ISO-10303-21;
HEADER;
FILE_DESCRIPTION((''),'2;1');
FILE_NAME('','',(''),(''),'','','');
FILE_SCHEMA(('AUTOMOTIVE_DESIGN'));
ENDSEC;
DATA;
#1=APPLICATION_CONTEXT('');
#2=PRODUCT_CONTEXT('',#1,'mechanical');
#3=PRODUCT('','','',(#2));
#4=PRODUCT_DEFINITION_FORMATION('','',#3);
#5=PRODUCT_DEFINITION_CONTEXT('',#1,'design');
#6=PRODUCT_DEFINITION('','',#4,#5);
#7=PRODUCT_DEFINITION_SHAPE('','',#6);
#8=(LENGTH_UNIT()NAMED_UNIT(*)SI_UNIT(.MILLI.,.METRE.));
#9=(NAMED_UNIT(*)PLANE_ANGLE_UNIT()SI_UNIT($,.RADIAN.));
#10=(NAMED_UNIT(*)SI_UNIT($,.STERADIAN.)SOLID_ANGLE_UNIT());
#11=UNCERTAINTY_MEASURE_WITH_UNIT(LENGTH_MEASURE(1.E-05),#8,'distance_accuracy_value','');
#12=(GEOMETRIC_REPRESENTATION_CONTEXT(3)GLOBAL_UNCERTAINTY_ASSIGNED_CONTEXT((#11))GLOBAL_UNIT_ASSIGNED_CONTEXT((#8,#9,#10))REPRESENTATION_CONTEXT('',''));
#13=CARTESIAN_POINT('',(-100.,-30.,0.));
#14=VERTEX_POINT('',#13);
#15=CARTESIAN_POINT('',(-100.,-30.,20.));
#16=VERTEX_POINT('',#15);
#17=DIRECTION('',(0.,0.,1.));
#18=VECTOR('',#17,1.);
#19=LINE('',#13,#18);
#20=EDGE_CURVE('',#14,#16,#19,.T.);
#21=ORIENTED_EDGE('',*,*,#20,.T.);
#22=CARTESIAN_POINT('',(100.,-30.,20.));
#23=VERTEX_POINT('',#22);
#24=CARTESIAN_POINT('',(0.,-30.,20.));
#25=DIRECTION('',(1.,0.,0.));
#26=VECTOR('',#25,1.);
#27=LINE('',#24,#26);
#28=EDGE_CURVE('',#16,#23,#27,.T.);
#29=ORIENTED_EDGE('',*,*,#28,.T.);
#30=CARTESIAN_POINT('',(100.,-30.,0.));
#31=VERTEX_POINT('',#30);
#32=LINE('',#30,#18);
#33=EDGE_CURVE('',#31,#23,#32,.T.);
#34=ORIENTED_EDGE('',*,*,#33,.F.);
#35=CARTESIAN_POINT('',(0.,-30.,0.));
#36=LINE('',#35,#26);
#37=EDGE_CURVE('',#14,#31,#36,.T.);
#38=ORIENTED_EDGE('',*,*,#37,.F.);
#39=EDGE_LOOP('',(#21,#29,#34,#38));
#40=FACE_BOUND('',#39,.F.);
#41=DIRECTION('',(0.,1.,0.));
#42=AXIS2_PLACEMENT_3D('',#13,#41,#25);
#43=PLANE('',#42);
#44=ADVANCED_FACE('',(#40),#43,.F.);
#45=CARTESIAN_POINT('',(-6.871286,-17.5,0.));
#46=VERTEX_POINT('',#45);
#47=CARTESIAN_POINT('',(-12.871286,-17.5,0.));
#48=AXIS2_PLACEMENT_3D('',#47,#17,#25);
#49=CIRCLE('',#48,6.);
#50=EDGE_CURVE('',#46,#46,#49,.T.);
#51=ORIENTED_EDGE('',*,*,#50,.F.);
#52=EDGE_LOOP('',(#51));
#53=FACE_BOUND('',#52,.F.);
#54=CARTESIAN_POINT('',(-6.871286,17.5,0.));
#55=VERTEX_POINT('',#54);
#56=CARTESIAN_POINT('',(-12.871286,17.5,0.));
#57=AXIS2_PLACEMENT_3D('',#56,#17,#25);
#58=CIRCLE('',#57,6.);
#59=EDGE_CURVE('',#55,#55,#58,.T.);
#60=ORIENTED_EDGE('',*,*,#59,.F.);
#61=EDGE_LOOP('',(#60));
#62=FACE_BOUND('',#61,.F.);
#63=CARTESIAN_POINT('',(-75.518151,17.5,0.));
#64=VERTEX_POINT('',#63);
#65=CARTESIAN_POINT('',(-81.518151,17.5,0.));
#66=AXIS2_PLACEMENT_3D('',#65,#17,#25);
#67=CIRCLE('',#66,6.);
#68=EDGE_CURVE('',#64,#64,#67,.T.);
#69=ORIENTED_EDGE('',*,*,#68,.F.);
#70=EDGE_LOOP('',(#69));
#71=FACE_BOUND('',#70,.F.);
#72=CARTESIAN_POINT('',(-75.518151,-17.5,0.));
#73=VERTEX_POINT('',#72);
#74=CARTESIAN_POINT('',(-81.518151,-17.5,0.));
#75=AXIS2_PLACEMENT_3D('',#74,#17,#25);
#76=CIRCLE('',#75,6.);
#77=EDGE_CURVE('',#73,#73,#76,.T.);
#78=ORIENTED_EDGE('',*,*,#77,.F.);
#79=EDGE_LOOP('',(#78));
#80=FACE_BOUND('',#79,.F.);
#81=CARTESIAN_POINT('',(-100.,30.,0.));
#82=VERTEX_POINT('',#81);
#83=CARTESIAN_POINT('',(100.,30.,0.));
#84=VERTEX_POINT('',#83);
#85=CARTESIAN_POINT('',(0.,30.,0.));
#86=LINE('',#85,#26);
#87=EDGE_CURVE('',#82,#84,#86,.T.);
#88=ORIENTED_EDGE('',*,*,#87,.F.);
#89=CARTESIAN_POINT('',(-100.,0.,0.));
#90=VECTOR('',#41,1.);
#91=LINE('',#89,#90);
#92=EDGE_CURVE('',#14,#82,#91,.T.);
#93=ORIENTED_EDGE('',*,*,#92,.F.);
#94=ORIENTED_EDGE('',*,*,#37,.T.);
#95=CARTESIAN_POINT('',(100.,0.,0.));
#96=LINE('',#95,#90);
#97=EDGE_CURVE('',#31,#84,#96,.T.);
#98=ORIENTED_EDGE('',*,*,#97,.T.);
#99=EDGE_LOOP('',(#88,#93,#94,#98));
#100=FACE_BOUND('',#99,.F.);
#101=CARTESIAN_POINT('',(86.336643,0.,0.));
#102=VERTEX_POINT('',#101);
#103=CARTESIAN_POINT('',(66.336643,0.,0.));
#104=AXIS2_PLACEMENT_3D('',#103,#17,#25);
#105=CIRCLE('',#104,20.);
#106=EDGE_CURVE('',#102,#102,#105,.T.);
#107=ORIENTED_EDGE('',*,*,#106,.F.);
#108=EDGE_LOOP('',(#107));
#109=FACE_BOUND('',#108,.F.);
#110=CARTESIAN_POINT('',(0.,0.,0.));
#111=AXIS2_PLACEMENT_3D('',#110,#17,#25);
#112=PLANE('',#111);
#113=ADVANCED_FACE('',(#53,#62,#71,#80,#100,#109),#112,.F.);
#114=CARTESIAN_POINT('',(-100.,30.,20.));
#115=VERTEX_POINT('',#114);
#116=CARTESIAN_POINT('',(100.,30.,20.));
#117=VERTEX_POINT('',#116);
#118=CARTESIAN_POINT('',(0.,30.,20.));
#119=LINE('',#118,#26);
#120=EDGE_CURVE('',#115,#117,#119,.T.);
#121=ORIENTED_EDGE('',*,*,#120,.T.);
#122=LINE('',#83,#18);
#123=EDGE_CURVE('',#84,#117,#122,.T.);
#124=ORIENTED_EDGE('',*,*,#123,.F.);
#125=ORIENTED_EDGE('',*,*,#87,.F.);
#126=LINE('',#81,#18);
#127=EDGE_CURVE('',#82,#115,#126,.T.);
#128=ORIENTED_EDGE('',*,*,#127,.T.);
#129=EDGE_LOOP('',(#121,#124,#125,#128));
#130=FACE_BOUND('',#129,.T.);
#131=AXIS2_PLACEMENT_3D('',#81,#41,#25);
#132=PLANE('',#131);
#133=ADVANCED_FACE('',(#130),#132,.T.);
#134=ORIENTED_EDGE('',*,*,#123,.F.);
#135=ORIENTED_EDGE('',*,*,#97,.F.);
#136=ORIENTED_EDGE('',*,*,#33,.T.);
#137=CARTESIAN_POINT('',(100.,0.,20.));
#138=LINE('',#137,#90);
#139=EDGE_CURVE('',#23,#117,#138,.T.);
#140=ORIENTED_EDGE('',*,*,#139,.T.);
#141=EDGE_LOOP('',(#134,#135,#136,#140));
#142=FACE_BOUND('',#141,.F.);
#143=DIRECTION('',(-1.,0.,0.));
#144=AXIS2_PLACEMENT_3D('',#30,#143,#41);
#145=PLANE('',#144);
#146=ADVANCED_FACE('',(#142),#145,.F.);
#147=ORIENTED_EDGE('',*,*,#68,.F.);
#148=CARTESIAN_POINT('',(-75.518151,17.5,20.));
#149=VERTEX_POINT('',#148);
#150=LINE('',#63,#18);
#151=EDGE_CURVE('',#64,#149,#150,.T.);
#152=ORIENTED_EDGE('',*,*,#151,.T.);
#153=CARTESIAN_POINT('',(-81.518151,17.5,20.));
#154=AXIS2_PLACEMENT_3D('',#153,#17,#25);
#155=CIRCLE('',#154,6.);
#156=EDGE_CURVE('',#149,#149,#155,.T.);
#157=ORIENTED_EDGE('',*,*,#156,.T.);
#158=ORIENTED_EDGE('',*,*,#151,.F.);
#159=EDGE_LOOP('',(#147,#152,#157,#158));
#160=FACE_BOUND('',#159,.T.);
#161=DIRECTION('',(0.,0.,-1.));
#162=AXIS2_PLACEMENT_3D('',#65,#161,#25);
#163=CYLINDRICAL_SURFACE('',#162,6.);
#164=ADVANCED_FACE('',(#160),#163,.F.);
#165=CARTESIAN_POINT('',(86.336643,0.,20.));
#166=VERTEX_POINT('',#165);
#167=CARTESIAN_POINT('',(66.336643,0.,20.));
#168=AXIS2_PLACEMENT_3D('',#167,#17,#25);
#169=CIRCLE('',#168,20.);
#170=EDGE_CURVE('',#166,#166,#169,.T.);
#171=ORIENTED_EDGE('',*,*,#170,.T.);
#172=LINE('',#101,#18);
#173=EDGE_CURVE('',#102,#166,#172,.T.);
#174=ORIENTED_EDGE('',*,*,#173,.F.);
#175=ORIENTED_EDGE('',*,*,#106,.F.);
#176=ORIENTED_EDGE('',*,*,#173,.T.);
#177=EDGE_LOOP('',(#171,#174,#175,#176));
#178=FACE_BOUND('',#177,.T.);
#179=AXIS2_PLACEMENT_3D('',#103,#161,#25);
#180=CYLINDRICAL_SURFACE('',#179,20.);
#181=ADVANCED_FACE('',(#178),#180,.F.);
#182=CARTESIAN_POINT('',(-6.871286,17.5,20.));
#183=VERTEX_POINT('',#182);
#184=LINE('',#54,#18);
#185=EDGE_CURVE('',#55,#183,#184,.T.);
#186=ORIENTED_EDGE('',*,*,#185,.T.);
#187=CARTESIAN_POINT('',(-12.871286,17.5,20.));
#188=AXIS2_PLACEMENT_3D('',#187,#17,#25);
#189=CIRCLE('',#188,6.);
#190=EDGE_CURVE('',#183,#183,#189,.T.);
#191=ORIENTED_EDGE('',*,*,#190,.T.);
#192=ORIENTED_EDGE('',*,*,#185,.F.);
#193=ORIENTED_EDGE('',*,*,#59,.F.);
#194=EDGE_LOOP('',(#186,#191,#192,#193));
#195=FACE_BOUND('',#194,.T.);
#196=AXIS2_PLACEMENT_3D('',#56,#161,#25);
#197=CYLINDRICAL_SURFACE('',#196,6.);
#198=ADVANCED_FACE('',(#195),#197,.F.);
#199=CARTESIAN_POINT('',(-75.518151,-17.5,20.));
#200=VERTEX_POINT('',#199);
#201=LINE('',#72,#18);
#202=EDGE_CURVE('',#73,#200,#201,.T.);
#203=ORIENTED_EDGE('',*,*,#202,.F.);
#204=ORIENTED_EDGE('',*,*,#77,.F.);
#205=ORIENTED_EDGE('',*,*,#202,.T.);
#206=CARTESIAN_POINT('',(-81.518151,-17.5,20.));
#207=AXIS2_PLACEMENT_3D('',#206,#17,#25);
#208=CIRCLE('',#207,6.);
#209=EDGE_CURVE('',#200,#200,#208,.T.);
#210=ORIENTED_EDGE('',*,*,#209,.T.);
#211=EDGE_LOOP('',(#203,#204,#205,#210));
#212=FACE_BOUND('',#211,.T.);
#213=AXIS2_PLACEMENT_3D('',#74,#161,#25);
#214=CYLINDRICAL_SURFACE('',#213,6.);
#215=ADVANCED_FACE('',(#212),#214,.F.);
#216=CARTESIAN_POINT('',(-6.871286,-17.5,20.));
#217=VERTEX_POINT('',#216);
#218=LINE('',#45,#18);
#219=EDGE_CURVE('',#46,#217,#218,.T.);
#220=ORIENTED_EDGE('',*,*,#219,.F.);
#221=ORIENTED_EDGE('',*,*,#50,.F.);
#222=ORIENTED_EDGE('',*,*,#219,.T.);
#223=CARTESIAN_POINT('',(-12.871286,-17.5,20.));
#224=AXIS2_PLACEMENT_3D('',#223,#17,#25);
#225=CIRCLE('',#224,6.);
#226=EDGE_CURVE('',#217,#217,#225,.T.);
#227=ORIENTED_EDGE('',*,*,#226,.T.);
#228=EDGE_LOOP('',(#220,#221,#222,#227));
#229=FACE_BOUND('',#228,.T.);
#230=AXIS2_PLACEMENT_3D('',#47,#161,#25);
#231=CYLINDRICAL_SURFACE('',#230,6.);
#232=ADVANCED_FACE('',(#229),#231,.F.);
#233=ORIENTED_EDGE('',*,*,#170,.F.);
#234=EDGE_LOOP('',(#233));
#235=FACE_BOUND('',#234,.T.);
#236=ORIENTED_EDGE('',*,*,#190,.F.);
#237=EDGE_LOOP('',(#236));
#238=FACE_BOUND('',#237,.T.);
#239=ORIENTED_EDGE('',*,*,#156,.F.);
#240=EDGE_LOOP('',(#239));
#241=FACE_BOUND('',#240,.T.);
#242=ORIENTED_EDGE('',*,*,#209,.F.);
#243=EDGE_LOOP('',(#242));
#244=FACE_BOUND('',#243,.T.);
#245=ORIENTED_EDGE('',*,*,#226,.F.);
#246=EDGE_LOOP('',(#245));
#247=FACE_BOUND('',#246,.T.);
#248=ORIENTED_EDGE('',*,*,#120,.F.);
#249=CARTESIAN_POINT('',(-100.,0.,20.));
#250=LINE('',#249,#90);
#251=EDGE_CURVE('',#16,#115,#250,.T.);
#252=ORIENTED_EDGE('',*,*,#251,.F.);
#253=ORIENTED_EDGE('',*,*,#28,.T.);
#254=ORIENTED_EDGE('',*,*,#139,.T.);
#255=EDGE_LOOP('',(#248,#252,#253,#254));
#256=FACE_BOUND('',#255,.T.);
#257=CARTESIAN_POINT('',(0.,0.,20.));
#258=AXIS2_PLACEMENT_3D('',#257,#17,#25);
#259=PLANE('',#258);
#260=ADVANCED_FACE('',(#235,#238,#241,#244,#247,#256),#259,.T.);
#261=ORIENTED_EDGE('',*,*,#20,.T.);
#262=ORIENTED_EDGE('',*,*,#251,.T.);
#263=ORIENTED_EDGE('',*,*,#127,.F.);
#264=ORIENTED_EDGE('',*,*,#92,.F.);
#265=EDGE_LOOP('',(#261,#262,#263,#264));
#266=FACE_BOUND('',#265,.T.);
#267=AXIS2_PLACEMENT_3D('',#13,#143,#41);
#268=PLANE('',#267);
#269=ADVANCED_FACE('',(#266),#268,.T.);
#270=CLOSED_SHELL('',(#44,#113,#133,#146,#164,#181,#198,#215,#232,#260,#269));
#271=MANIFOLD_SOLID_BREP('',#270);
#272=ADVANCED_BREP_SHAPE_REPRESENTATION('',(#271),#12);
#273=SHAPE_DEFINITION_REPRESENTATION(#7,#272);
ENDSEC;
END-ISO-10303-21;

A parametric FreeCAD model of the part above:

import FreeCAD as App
import Part
import Sketcher

V = App.Vector

doc = App.newDocument("Part")
body = doc.addObject("PartDesign::Body", "Body")

sketch1 = doc.addObject("Sketcher::SketchObject", "Sketch")
body.addObject(sketch1)
sketch1.AttachmentSupport = (doc.XY_Plane, [""])
sketch1.MapMode = "FlatFace"
sketch1.addGeometry(Part.LineSegment(V(-100, 30, 0), V(-100, -30, 0)), False)
sketch1.addGeometry(Part.LineSegment(V(-100, -30, 0), V(100, -30, 0)), False)
sketch1.addGeometry(Part.LineSegment(V(100, -30, 0), V(100, 30, 0)), False)
sketch1.addGeometry(Part.LineSegment(V(100, 30, 0), V(-100, 30, 0)), False)
sketch1.addGeometry(Part.Circle(V(-81.518151, -17.5, 0), V(0, 0, 1), 6), False)
sketch1.addGeometry(Part.Circle(V(-12.871286, -17.5, 0), V(0, 0, 1), 6), False)
sketch1.addGeometry(Part.Circle(V(-81.518151, 17.5, 0), V(0, 0, 1), 6), False)
sketch1.addGeometry(Part.Circle(V(-12.871286, 17.5, 0), V(0, 0, 1), 6), False)
sketch1.addGeometry(Part.Circle(V(66.336643, 0, 0), V(0, 0, 1), 20), False)
sketch1.addConstraint(Sketcher.Constraint("Coincident", 0, 2, 1, 1))
sketch1.addConstraint(Sketcher.Constraint("Coincident", 1, 2, 2, 1))
sketch1.addConstraint(Sketcher.Constraint("Coincident", 2, 2, 3, 1))
sketch1.addConstraint(Sketcher.Constraint("Coincident", 3, 2, 0, 1))
sketch1.addConstraint(Sketcher.Constraint("Vertical", 0))
sketch1.addConstraint(Sketcher.Constraint("Horizontal", 1))
sketch1.addConstraint(Sketcher.Constraint("Vertical", 2))
sketch1.addConstraint(Sketcher.Constraint("Horizontal", 3))
sketch1.addConstraint(Sketcher.Constraint("Equal", 4, 5))
sketch1.addConstraint(Sketcher.Constraint("Equal", 5, 6))
sketch1.addConstraint(Sketcher.Constraint("Equal", 6, 7))
sketch1.addConstraint(Sketcher.Constraint("Symmetric", 0, 2, 2, 2, -1, 1))
sketch1.addConstraint(Sketcher.Constraint("Symmetric", 4, 3, 6, 3, -1))
sketch1.addConstraint(Sketcher.Constraint("Symmetric", 5, 3, 7, 3, -1))
sketch1.addConstraint(Sketcher.Constraint("PointOnObject", 8, 3, -1))
sketch1.addConstraint(Sketcher.Constraint("Horizontal", 4, 3, 5, 3))
sketch1.addConstraint(Sketcher.Constraint("Diameter", 4, 12.0))
sketch1.addConstraint(Sketcher.Constraint("Diameter", 8, 40.0))
sketch1.addConstraint(Sketcher.Constraint("DistanceX", 1, 1, 1, 2, 200.0))
sketch1.addConstraint(Sketcher.Constraint("DistanceY", 0, 2, 0, 1, 60.0))
sketch1.addConstraint(Sketcher.Constraint("DistanceY", 4, 3, 6, 3, 35.0))
sketch1.addConstraint(Sketcher.Constraint("DistanceX", 4, 3, -1, 1, 81.518151))
sketch1.addConstraint(Sketcher.Constraint("DistanceX", 5, 3, 8, 3, 79.207929))
sketch1.addConstraint(Sketcher.Constraint("DistanceX", 5, 3, -1, 1, 12.871286))
pad1 = doc.addObject("PartDesign::Pad", "Pad")
body.addObject(pad1)
pad1.Profile = sketch1
pad1.Length = 20

doc.recompute()
